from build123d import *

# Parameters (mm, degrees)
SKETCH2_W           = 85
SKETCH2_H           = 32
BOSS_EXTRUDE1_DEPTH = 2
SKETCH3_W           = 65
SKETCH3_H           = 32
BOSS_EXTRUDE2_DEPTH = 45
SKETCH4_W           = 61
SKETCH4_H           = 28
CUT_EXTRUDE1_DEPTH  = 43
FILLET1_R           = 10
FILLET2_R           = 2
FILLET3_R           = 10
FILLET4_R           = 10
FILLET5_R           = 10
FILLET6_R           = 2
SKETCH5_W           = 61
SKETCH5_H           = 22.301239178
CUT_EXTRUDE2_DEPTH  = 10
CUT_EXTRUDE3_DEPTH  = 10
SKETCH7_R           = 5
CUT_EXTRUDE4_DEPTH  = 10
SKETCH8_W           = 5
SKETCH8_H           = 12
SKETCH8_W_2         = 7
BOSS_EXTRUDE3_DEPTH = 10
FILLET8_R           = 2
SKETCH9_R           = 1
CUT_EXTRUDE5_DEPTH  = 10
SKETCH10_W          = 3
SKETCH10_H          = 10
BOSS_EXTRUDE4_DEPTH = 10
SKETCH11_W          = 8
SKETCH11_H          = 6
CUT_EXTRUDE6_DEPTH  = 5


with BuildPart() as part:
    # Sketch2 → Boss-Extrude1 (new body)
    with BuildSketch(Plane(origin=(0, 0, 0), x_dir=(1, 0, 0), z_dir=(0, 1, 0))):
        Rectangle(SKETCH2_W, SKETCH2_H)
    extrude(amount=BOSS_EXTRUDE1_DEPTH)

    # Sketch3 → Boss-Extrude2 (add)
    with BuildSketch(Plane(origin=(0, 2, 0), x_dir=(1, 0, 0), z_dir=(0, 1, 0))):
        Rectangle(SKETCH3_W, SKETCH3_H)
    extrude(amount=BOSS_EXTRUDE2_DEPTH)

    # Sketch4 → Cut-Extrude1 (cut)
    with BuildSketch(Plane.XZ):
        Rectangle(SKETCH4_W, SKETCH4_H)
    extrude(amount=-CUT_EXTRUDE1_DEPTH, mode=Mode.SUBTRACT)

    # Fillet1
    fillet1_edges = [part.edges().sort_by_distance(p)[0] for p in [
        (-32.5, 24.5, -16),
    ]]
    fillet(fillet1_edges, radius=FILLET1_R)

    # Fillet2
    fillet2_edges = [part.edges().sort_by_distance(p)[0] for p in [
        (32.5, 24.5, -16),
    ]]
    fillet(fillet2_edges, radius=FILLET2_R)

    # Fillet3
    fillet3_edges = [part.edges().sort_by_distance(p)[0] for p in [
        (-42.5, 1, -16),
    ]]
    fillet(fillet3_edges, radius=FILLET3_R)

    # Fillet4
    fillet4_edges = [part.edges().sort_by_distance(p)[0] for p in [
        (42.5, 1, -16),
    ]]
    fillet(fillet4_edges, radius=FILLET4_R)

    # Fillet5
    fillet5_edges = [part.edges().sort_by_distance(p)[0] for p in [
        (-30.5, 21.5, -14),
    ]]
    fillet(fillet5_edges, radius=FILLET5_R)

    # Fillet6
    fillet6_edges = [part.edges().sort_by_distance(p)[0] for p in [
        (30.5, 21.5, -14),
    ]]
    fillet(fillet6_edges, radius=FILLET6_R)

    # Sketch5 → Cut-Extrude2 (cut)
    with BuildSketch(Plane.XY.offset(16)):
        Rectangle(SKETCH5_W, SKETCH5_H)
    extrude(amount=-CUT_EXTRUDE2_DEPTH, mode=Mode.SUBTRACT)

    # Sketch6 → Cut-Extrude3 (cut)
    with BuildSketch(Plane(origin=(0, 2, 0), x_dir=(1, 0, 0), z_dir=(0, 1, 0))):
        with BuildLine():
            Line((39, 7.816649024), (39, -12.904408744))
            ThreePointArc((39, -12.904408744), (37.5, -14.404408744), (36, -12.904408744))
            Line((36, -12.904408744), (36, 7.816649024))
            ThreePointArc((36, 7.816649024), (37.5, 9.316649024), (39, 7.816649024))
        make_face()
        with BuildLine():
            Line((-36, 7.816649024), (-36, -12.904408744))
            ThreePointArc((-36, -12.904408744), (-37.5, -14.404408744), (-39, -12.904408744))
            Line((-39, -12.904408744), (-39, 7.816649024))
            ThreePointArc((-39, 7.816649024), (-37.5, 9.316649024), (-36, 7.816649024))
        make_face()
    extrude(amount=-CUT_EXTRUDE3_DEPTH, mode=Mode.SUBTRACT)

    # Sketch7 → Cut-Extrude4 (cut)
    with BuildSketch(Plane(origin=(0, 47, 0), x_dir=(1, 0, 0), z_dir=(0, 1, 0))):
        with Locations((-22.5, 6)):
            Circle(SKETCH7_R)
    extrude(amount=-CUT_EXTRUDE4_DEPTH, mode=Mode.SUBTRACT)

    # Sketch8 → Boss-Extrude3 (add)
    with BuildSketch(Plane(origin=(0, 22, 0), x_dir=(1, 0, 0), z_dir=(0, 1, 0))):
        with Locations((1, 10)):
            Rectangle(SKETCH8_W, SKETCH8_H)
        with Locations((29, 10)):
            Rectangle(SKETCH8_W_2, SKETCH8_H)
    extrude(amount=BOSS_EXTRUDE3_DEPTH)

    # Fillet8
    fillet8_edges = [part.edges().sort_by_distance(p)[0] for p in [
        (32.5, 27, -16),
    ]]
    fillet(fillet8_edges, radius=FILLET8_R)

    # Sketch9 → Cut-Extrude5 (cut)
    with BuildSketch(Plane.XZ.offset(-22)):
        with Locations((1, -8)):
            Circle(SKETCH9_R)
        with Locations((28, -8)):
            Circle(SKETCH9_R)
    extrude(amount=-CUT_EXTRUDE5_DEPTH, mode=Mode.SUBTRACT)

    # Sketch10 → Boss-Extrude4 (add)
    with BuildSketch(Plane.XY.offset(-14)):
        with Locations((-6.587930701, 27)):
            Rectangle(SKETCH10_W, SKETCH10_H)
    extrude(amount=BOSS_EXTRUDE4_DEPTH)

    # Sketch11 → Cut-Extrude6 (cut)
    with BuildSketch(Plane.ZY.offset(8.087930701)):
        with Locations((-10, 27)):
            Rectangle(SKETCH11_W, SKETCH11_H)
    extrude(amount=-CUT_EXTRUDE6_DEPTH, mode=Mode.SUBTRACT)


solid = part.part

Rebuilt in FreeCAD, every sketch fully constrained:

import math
import FreeCAD as App
import Part
import Sketcher
from FreeCAD import Vector


def edges_at(feature, points):
    """Names of the edges that pass closest to the given points."""
    edges = feature.Shape.Edges
    near = lambda p: min(range(len(edges)), key=lambda i: edges[i].distToShape(Part.Vertex(*p))[0])
    return sorted({f"Edge{near(p) + 1}" for p in points})


def add_polygon(sketch, points):
    """Adds a closed chain of lines whose ends are joined by coincident constraints."""
    first, n = sketch.GeometryCount, len(points)
    for a, b in zip(points, points[1:] + points[:1]):
        sketch.addGeometry(Part.LineSegment(App.Vector(*a, 0), App.Vector(*b, 0)), False)
    for i in range(n):
        sketch.addConstraint(Sketcher.Constraint("Coincident", first + i, 2, first + (i + 1) % n, 1))

doc = App.newDocument("Part")
body = doc.addObject("PartDesign::Body", "Body")

# Sketch on XZ plane
sketch1 = body.newObject("Sketcher::SketchObject", "Sketch")
sketch1.AttachmentSupport = (doc.getObject("XZ_Plane"), [""])
sketch1.MapMode = "FlatFace"
add_polygon(sketch1, [(-42, -16), (-42, 16), (42, 16), (42, -16)])  # lines 0-3
sketch1.addConstraint(Sketcher.Constraint("Vertical", 0))
sketch1.addConstraint(Sketcher.Constraint("Horizontal", 1))
sketch1.addConstraint(Sketcher.Constraint("Vertical", 2))
sketch1.addConstraint(Sketcher.Constraint("Horizontal", 3))
sketch1.addConstraint(Sketcher.Constraint("Symmetric", 0, 2, 2, 2, -1, 1))
sketch1.addConstraint(Sketcher.Constraint("DistanceX", 1, 1, 1, 2, 85.0))
sketch1.addConstraint(Sketcher.Constraint("DistanceY", 0, 1, 0, 2, 32.0))
pad1 = body.newObject("PartDesign::Pad", "Pad")
pad1.Profile = sketch1
pad1.Length = 2
pad1.Reversed = True

# Sketch on XZ plane
sketch2 = body.newObject("Sketcher::SketchObject", "Sketch001")
sketch2.AttachmentSupport = (doc.getObject("XZ_Plane"), [""])
sketch2.MapMode = "FlatFace"
sketch2.AttachmentOffset = App.Placement(Vector(0, 0, -2), App.Rotation())
add_polygon(sketch2, [(-32, -16), (-32, 16), (32, 16), (32, -16)])  # lines 0-3
sketch2.addConstraint(Sketcher.Constraint("Vertical", 0))
sketch2.addConstraint(Sketcher.Constraint("Horizontal", 1))
sketch2.addConstraint(Sketcher.Constraint("Vertical", 2))
sketch2.addConstraint(Sketcher.Constraint("Horizontal", 3))
sketch2.addConstraint(Sketcher.Constraint("Symmetric", 0, 2, 2, 2, -1, 1))
sketch2.addConstraint(Sketcher.Constraint("DistanceX", 1, 1, 1, 2, 65.0))
sketch2.addConstraint(Sketcher.Constraint("DistanceY", 0, 1, 0, 2, 32.0))
pad2 = body.newObject("PartDesign::Pad", "Pad001")
pad2.Profile = sketch2
pad2.Length = 45
pad2.Reversed = True

# Sketch on XZ plane
sketch3 = body.newObject("Sketcher::SketchObject", "Sketch002")
sketch3.AttachmentSupport = (doc.getObject("XZ_Plane"), [""])
sketch3.MapMode = "FlatFace"
add_polygon(sketch3, [(-30, 14), (-30, -14), (30, -14), (30, 14)])  # lines 0-3
sketch3.addConstraint(Sketcher.Constraint("Vertical", 0))
sketch3.addConstraint(Sketcher.Constraint("Horizontal", 1))
sketch3.addConstraint(Sketcher.Constraint("Vertical", 2))
sketch3.addConstraint(Sketcher.Constraint("Horizontal", 3))
sketch3.addConstraint(Sketcher.Constraint("Symmetric", 0, 2, 2, 2, -1, 1))
sketch3.addConstraint(Sketcher.Constraint("DistanceX", 1, 1, 1, 2, 61.0))
sketch3.addConstraint(Sketcher.Constraint("DistanceY", 0, 2, 0, 1, 28.0))
pocket1 = body.newObject("PartDesign::Pocket", "Pocket")
pocket1.Profile = sketch3
pocket1.Length = 43
doc.recompute()

fillet = body.newObject("PartDesign::Fillet", "Fillet")
fillet.Base = (pocket1, edges_at(pocket1, [(-32.5, 24.5, -16)]))
fillet.Radius = 10
doc.recompute()

fillet2 = body.newObject("PartDesign::Fillet", "Fillet001")
fillet2.Base = (fillet, edges_at(fillet, [(32.5, 24.5, -16)]))
fillet2.Radius = 2
doc.recompute()

fillet3 = body.newObject("PartDesign::Fillet", "Fillet002")
fillet3.Base = (fillet2, edges_at(fillet2, [(-42.5, 1, -16)]))
fillet3.Radius = 10
doc.recompute()

fillet4 = body.newObject("PartDesign::Fillet", "Fillet003")
fillet4.Base = (fillet3, edges_at(fillet3, [(42.5, 1, -16)]))
fillet4.Radius = 10
doc.recompute()

fillet5 = body.newObject("PartDesign::Fillet", "Fillet004")
fillet5.Base = (fillet4, edges_at(fillet4, [(-30.5, 21.5, -14)]))
fillet5.Radius = 10
doc.recompute()

fillet6 = body.newObject("PartDesign::Fillet", "Fillet005")
fillet6.Base = (fillet5, edges_at(fillet5, [(30.5, 21.5, -14)]))
fillet6.Radius = 2

# Sketch on XY plane
sketch4 = body.newObject("Sketcher::SketchObject", "Sketch003")
sketch4.AttachmentSupport = (doc.getObject("XY_Plane"), [""])
sketch4.MapMode = "FlatFace"
sketch4.AttachmentOffset = App.Placement(Vector(0, 0, 16), App.Rotation())
add_polygon(sketch4, [(-30, 11), (-30, -11), (30, -11), (30, 11)])  # lines 0-3
sketch4.addConstraint(Sketcher.Constraint("Vertical", 0))
sketch4.addConstraint(Sketcher.Constraint("Horizontal", 1))
sketch4.addConstraint(Sketcher.Constraint("Vertical", 2))
sketch4.addConstraint(Sketcher.Constraint("Horizontal", 3))
sketch4.addConstraint(Sketcher.Constraint("Symmetric", 0, 2, 2, 2, -1, 1))
sketch4.addConstraint(Sketcher.Constraint("DistanceX", 1, 1, 1, 2, 61.0))
sketch4.addConstraint(Sketcher.Constraint("DistanceY", 0, 2, 0, 1, 22.301239))
pocket2 = body.newObject("PartDesign::Pocket", "Pocket001")
pocket2.Profile = sketch4
pocket2.Length = 10

# Sketch on XZ plane
sketch5 = body.newObject("Sketcher::SketchObject", "Sketch004")
sketch5.AttachmentSupport = (doc.getObject("XZ_Plane"), [""])
sketch5.MapMode = "FlatFace"
sketch5.AttachmentOffset = App.Placement(Vector(0, 0, -2), App.Rotation())
sketch5.addGeometry(Part.LineSegment(Vector(39, 12.9, 0), Vector(39, -7.8, 0)), False)
sketch5.addGeometry(Part.ArcOfCircle(Part.Circle(Vector(37.5, -7.8, 0), Vector(0, 0, 1), 1.5), math.radians(180), math.radians(360)), False)
sketch5.addGeometry(Part.LineSegment(Vector(36, -7.8, 0), Vector(36, 12.9, 0)), False)
sketch5.addGeometry(Part.ArcOfCircle(Part.Circle(Vector(37.5, 12.9, 0), Vector(0, 0, 1), 1.5), math.radians(0), math.radians(180)), False)
sketch5.addGeometry(Part.LineSegment(Vector(-36, 12.9, 0), Vector(-36, -7.8, 0)), False)
sketch5.addGeometry(Part.ArcOfCircle(Part.Circle(Vector(-37.5, -7.8, 0), Vector(0, 0, 1), 1.5), math.radians(180), math.radians(360)), False)
sketch5.addGeometry(Part.LineSegment(Vector(-39, -7.8, 0), Vector(-39, 12.9, 0)), False)
sketch5.addGeometry(Part.ArcOfCircle(Part.Circle(Vector(-37.5, 12.9, 0), Vector(0, 0, 1), 1.5), math.radians(0), math.radians(180)), False)
sketch5.addConstraint(Sketcher.Constraint("Tangent", 0, 2, 1, 2))
sketch5.addConstraint(Sketcher.Constraint("Tangent", 1, 1, 2, 1))
sketch5.addConstraint(Sketcher.Constraint("Tangent", 2, 2, 3, 2))
sketch5.addConstraint(Sketcher.Constraint("Tangent", 3, 1, 0, 1))
sketch5.addConstraint(Sketcher.Constraint("Tangent", 4, 2, 5, 2))
sketch5.addConstraint(Sketcher.Constraint("Tangent", 5, 1, 6, 1))
sketch5.addConstraint(Sketcher.Constraint("Tangent", 6, 2, 7, 2))
sketch5.addConstraint(Sketcher.Constraint("Tangent", 7, 1, 4, 1))
sketch5.addConstraint(Sketcher.Constraint("Vertical", 0))
sketch5.addConstraint(Sketcher.Constraint("Vertical", 2))
sketch5.addConstraint(Sketcher.Constraint("Vertical", 4))
sketch5.addConstraint(Sketcher.Constraint("Vertical", 6))
sketch5.addConstraint(Sketcher.Constraint("Equal", 3, 5))
sketch5.addConstraint(Sketcher.Constraint("Symmetric", 1, 3, 5, 3, -2))
sketch5.addConstraint(Sketcher.Constraint("Horizontal", 3, 3, 7, 3))
sketch5.addConstraint(Sketcher.Constraint("Radius", 1, 1.5))
sketch5.addConstraint(Sketcher.Constraint("DistanceX", -1, 1, 0, 2, 39.0))
sketch5.addConstraint(Sketcher.Constraint("DistanceY", 0, 2, 0, 1, 20.721058))
sketch5.addConstraint(Sketcher.Constraint("DistanceY", 1, 3, -1, 1, 7.816649))
pocket3 = body.newObject("PartDesign::Pocket", "Pocket002")
pocket3.Profile = sketch5
pocket3.Length = 10
pocket3.Reversed = True

# Sketch on XZ plane
sketch6 = body.newObject("Sketcher::SketchObject", "Sketch005")
sketch6.AttachmentSupport = (doc.getObject("XZ_Plane"), [""])
sketch6.MapMode = "FlatFace"
sketch6.AttachmentOffset = App.Placement(Vector(0, 0, -47), App.Rotation())
sketch6.addGeometry(Part.Circle(Vector(-22, -6, 0), Vector(0, 0, 1), 5), False)
sketch6.addConstraint(Sketcher.Constraint("Diameter", 0, 10.0))
sketch6.addConstraint(Sketcher.Constraint("DistanceY", 0, 3, -1, 1, 6.0))
sketch6.addConstraint(Sketcher.Constraint("DistanceX", 0, 3, -1, 1, 22.5))
pocket4 = body.newObject("PartDesign::Pocket", "Pocket003")
pocket4.Profile = sketch6
pocket4.Length = 10
pocket4.Reversed = True

# Sketch on XZ plane
sketch7 = body.newObject("Sketcher::SketchObject", "Sketch006")
sketch7.AttachmentSupport = (doc.getObject("XZ_Plane"), [""])
sketch7.MapMode = "FlatFace"
sketch7.AttachmentOffset = App.Placement(Vector(0, 0, -22), App.Rotation())
add_polygon(sketch7, [(-2, -16), (-2, -4), (4, -4), (4, -16)])  # lines 0-3
add_polygon(sketch7, [(26, -16), (26, -4), (32, -4), (32, -16)])  # lines 4-7
sketch7.addConstraint(Sketcher.Constraint("Vertical", 0))
sketch7.addConstraint(Sketcher.Constraint("Horizontal", 1))
sketch7.addConstraint(Sketcher.Constraint("Vertical", 2))
sketch7.addConstraint(Sketcher.Constraint("Horizontal", 3))
sketch7.addConstraint(Sketcher.Constraint("Vertical", 4))
sketch7.addConstraint(Sketcher.Constraint("Horizontal", 5))
sketch7.addConstraint(Sketcher.Constraint("Vertical", 6))
sketch7.addConstraint(Sketcher.Constraint("Horizontal", 7))
sketch7.addConstraint(Sketcher.Constraint("Horizontal", 1, 2, 4, 2))
sketch7.addConstraint(Sketcher.Constraint("Horizontal", 3, 2, 6, 2))
sketch7.addConstraint(Sketcher.Constraint("DistanceX", 1, 1, 1, 2, 5.0))
sketch7.addConstraint(Sketcher.Constraint("DistanceX", 5, 1, 5, 2, 7.0))
sketch7.addConstraint(Sketcher.Constraint("DistanceY", 0, 1, 0, 2, 12.0))
sketch7.addConstraint(Sketcher.Constraint("DistanceY", 0, 2, -1, 1, 4.0))
sketch7.addConstraint(Sketcher.Constraint("DistanceX", 1, 2, 4, 2, 22.0))
sketch7.addConstraint(Sketcher.Constraint("DistanceX", 0, 2, -1, 1, 1.5))
pad3 = body.newObject("PartDesign::Pad", "Pad002")
pad3.Profile = sketch7
pad3.Length = 10
pad3.Reversed = True
doc.recompute()

fillet7 = body.newObject("PartDesign::Fillet", "Fillet006")
fillet7.Base = (pad3, edges_at(pad3, [(32.5, 27, -16)]))
fillet7.Radius = 2

# Sketch on XZ plane
sketch8 = body.newObject("Sketcher::SketchObject", "Sketch007")
sketch8.AttachmentSupport = (doc.getObject("XZ_Plane"), [""])
sketch8.MapMode = "FlatFace"
sketch8.AttachmentOffset = App.Placement(Vector(0, 0, -22), App.Rotation())
sketch8.addGeometry(Part.Circle(Vector(1, -8, 0), Vector(0, 0, 1), 1), False)
sketch8.addGeometry(Part.Circle(Vector(28, -8, 0), Vector(0, 0, 1), 1), False)
sketch8.addConstraint(Sketcher.Constraint("Equal", 0, 1))
sketch8.addConstraint(Sketcher.Constraint("Horizontal", 0, 3, 1, 3))
sketch8.addConstraint(Sketcher.Constraint("Diameter", 0, 2.0))
sketch8.addConstraint(Sketcher.Constraint("DistanceX", -1, 1, 0, 3, 1.0))
sketch8.addConstraint(Sketcher.Constraint("DistanceY", 0, 3, -1, 1, 8.0))
sketch8.addConstraint(Sketcher.Constraint("DistanceX", -1, 1, 1, 3, 28.0))
pocket5 = body.newObject("PartDesign::Pocket", "Pocket004")
pocket5.Profile = sketch8
pocket5.Length = 10

# Sketch on XY plane
sketch9 = body.newObject("Sketcher::SketchObject", "Sketch008")
sketch9.AttachmentSupport = (doc.getObject("XY_Plane"), [""])
sketch9.MapMode = "FlatFace"
sketch9.AttachmentOffset = App.Placement(Vector(0, 0, -14), App.Rotation())
add_polygon(sketch9, [(-8.1, 32), (-8.1, 22), (-5.1, 22), (-5.1, 32)])  # lines 0-3
sketch9.addConstraint(Sketcher.Constraint("Vertical", 0))
sketch9.addConstraint(Sketcher.Constraint("Horizontal", 1))
sketch9.addConstraint(Sketcher.Constraint("Vertical", 2))
sketch9.addConstraint(Sketcher.Constraint("Horizontal", 3))
sketch9.addConstraint(Sketcher.Constraint("DistanceX", 1, 1, 1, 2, 3.0))
sketch9.addConstraint(Sketcher.Constraint("DistanceY", 0, 2, 0, 1, 10.0))
sketch9.addConstraint(Sketcher.Constraint("DistanceY", -1, 1, 0, 2, 22.0))
sketch9.addConstraint(Sketcher.Constraint("DistanceX", 0, 2, -1, 1, 8.087931))
pad4 = body.newObject("PartDesign::Pad", "Pad003")
pad4.Profile = sketch9
pad4.Length = 10

# Sketch on YZ plane
sketch10 = body.newObject("Sketcher::SketchObject", "Sketch009")
sketch10.AttachmentSupport = (doc.getObject("YZ_Plane"), [""])
sketch10.MapMode = "FlatFace"
sketch10.AttachmentOffset = App.Placement(Vector(0, 0, -8.087931), App.Rotation())
add_polygon(sketch10, [(30, -14), (24, -14), (24, -6), (30, -6)])  # lines 0-3
sketch10.addConstraint(Sketcher.Constraint("Horizontal", 0))
sketch10.addConstraint(Sketcher.Constraint("Vertical", 1))
sketch10.addConstraint(Sketcher.Constraint("Horizontal", 2))
sketch10.addConstraint(Sketcher.Constraint("Vertical", 3))
sketch10.addConstraint(Sketcher.Constraint("DistanceX", 0, 2, 0, 1, 6.0))
sketch10.addConstraint(Sketcher.Constraint("DistanceY", 1, 1, 1, 2, 8.0))
sketch10.addConstraint(Sketcher.Constraint("DistanceX", -1, 1, 0, 2, 24.0))
sketch10.addConstraint(Sketcher.Constraint("DistanceY", 0, 2, -1, 1, 14.0))
pocket6 = body.newObject("PartDesign::Pocket", "Pocket005")
pocket6.Profile = sketch10
pocket6.Length = 5
pocket6.Reversed = True

doc.recompute()
